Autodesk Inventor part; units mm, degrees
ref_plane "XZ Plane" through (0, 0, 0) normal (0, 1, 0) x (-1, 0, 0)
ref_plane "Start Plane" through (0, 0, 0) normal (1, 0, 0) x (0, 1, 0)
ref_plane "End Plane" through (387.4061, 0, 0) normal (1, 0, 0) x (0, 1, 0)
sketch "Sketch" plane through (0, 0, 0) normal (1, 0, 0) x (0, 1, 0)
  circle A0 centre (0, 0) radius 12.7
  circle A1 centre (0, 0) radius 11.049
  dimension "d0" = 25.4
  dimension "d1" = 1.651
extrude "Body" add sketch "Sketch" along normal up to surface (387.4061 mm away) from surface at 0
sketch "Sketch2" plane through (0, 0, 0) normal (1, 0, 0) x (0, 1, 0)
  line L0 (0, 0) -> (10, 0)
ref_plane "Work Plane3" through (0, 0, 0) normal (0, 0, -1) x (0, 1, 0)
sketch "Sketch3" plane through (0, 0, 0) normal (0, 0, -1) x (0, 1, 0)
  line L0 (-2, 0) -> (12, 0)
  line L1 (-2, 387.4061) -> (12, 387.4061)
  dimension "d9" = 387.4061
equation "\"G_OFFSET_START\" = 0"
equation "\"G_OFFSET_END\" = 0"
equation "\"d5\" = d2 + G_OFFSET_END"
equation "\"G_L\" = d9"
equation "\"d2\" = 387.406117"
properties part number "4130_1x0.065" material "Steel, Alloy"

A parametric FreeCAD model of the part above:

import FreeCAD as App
import Part
import Sketcher

V = App.Vector
Q = App.Units.Quantity

doc = App.newDocument("Part")
body = doc.addObject("PartDesign::Body", "Body")

# Sketch on YZ plane
sketch1 = body.newObject("Sketcher::SketchObject", "Sketch")
sketch1.AttachmentSupport = (doc.getObject("YZ_Plane"), [""])
sketch1.MapMode = "FlatFace"
sketch1.addGeometry(Part.Circle(V(0, 0, 0), V(0, 0, 1), 13), False)
sketch1.addGeometry(Part.Circle(V(0, 0, 0), V(0, 0, 1), 11), False)
sketch1.addConstraint(Sketcher.Constraint("Coincident", 0, 3, -1, 1))
sketch1.addConstraint(Sketcher.Constraint("Coincident", 1, 3, -1, 1))
sketch1.addConstraint(Sketcher.Constraint("Diameter", 0, Q("1 in")))
sketch1.addConstraint(Sketcher.Constraint("Diameter", 1, Q("0.87 in")))
pad1 = body.newObject("PartDesign::Pad", "Pad")
pad1.Profile = sketch1
pad1.Length = Q("15.2522087 in")

doc.recompute()
